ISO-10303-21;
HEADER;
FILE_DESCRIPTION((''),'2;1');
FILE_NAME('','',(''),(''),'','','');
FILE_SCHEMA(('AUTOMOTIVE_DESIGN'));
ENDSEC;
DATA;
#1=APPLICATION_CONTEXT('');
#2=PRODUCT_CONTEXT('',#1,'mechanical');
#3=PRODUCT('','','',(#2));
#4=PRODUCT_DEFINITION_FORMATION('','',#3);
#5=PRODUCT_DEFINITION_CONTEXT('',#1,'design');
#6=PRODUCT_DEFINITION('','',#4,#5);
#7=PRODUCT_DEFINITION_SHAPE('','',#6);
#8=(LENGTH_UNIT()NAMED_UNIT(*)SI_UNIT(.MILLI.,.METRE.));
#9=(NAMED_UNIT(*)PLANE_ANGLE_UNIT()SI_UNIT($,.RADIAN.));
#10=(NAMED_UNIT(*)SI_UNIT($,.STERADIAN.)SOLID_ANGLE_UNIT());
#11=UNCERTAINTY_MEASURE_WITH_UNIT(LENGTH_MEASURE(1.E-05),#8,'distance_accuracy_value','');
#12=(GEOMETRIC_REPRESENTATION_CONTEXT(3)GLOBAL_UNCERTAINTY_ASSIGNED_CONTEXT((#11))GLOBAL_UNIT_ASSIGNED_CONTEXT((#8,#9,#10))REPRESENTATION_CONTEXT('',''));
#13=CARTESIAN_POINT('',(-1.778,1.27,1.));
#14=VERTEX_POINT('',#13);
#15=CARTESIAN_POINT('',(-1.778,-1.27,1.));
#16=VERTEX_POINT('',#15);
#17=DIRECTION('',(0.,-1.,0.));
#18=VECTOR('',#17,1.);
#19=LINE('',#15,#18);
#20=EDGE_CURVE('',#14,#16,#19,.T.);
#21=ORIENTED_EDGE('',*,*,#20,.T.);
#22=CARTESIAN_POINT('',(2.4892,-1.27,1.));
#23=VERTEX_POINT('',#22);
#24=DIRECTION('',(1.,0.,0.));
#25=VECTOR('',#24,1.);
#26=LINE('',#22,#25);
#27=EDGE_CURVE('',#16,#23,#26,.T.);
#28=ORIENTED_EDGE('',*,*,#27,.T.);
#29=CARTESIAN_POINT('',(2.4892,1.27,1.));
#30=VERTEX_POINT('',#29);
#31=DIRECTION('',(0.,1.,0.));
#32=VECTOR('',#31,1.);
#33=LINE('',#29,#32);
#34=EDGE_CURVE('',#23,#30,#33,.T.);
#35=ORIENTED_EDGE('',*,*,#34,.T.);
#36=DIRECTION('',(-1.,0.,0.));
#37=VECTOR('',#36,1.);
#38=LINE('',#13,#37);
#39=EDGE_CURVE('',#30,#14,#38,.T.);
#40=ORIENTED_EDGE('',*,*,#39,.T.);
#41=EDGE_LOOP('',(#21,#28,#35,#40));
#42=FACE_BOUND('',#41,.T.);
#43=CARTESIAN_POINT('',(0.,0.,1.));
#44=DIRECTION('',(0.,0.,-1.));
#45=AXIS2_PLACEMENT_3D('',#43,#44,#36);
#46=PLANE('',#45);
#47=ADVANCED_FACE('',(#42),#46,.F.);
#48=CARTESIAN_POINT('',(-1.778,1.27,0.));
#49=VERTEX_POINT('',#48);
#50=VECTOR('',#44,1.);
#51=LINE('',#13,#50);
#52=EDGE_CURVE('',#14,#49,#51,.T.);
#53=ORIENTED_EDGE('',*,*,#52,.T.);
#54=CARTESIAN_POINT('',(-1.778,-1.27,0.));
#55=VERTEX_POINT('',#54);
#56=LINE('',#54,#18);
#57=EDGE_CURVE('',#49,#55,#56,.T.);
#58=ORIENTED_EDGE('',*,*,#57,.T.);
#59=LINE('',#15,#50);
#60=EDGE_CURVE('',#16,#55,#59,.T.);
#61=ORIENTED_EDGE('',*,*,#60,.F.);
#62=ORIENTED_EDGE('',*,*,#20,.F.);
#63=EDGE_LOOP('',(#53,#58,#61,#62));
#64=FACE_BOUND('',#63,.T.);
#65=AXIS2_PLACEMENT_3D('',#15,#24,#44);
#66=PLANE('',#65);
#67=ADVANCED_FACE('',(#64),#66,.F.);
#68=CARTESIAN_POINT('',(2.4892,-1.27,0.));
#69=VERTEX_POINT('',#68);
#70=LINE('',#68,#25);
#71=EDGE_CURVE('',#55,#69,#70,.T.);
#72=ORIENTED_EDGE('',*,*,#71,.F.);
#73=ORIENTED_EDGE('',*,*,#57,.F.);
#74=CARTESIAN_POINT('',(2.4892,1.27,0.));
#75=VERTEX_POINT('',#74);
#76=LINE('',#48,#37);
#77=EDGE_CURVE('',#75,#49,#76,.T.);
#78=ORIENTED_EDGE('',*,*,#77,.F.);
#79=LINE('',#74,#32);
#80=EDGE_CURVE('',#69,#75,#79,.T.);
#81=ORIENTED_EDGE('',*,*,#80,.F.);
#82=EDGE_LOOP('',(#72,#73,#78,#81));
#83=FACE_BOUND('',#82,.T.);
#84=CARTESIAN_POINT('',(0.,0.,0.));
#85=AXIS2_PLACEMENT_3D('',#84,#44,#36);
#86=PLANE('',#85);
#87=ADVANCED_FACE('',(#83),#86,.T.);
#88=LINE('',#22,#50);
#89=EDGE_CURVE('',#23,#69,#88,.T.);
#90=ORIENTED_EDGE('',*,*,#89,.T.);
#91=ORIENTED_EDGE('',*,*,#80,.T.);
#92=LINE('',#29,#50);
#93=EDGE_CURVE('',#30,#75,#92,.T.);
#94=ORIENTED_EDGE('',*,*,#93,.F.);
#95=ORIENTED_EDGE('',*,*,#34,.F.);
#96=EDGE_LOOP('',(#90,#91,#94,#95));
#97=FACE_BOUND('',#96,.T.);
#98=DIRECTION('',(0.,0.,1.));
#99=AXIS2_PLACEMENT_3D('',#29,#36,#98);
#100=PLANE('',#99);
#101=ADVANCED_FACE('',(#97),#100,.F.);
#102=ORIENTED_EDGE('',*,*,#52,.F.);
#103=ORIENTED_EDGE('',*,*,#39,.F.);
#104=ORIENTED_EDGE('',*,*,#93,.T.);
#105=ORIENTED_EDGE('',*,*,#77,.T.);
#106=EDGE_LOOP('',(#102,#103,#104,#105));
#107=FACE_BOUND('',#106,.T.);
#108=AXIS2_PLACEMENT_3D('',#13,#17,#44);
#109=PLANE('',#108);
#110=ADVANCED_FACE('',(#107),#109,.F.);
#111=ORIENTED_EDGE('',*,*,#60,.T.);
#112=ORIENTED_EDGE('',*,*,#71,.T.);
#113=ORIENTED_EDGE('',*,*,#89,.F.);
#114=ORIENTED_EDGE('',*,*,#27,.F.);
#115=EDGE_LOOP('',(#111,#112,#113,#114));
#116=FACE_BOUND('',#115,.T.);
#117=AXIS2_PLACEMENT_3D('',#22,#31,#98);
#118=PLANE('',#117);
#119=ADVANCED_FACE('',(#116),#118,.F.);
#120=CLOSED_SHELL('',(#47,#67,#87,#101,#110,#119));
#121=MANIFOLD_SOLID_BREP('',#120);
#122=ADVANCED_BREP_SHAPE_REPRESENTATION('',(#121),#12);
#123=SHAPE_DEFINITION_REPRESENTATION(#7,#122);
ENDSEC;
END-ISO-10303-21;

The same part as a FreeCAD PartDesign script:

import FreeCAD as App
import Part
import Sketcher
from FreeCAD import Vector
Q = App.Units.Quantity

doc = App.newDocument("Part")
params = doc.addObject("Spreadsheet::Sheet", "Params")
for row, (alias, value) in enumerate([
    ("sketch1_height", "0.1 in"),
    ("sketch1_width", "0.168 in"),
    ("pad1_length", "1 mm"),
], start=1):
    params.set(f"A{row}", alias)
    params.set(f"B{row}", "=" + value)
    params.setAlias(f"B{row}", alias)

body = doc.addObject("PartDesign::Body", "Body")

sketch1 = doc.addObject("Sketcher::SketchObject", "Sketch")
body.addObject(sketch1)
sketch1.AttachmentSupport = (doc.XY_Plane, [""])
sketch1.MapMode = "FlatFace"
sketch1.addGeometry([
    Part.LineSegment(Vector(-1.778, 1.27, 0), Vector(-1.778, -1.27, 0)),
    Part.LineSegment(Vector(-1.778, -1.27, 0), Vector(2.4892, -1.27, 0)),
    Part.LineSegment(Vector(2.4892, -1.27, 0), Vector(2.4892, 1.27, 0)),
    Part.LineSegment(Vector(2.4892, 1.27, 0), Vector(-1.778, 1.27, 0)),
], False)
sketch1.addConstraint([
    Sketcher.Constraint("Coincident", 0, 2, 1, 1),
    Sketcher.Constraint("Coincident", 1, 2, 2, 1),
    Sketcher.Constraint("Coincident", 2, 2, 3, 1),
    Sketcher.Constraint("Coincident", 3, 2, 0, 1),
    Sketcher.Constraint("Vertical", 0),
    Sketcher.Constraint("Horizontal", 1),
    Sketcher.Constraint("Vertical", 2),
    Sketcher.Constraint("Horizontal", 3),
    Sketcher.Constraint("DistanceY", 0, 2, 0, 1, Q("0.1 in")),
    Sketcher.Constraint("DistanceX", 1, 1, 1, 2, Q("0.168 in")),
    Sketcher.Constraint("DistanceX", 0, 2, -1, 1, Q("0.07 in")),
    Sketcher.Constraint("DistanceY", 0, 2, -1, 1, Q("0.05 in")),
])
sketch1.setExpression("Constraints[8]", "Params.sketch1_height")
sketch1.setExpression("Constraints[9]", "Params.sketch1_width")
pad1 = doc.addObject("PartDesign::Pad", "Pad")
body.addObject(pad1)
pad1.Profile = sketch1
pad1.setExpression("Length", "Params.pad1_length")

doc.recompute()
